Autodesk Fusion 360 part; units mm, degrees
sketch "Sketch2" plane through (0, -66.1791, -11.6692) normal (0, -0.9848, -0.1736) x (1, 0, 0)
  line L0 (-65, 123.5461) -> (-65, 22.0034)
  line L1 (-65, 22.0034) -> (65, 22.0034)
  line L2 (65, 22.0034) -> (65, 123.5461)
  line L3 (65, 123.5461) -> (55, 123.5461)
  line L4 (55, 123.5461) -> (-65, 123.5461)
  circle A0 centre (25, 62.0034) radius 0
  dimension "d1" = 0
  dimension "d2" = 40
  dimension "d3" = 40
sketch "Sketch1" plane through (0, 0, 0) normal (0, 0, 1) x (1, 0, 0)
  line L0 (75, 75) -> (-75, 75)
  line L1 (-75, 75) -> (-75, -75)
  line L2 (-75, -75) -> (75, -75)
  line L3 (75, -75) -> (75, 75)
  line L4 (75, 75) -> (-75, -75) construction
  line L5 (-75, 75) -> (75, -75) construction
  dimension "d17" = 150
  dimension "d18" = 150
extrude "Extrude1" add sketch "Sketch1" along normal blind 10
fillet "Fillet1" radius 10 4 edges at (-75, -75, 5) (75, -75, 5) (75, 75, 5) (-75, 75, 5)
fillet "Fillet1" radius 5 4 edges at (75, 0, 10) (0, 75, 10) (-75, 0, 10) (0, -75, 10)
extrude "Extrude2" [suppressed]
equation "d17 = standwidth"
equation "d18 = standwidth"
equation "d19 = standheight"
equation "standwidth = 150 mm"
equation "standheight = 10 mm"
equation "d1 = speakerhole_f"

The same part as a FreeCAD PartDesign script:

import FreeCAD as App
import Part
import Sketcher
from FreeCAD import Vector


def edges_at(feature, points):
    """Names of the edges that pass closest to the given points."""
    edges = feature.Shape.Edges
    near = lambda p: min(range(len(edges)), key=lambda i: edges[i].distToShape(Part.Vertex(*p))[0])
    return sorted({f"Edge{near(p) + 1}" for p in points})

doc = App.newDocument("Part")
params = doc.addObject("Spreadsheet::Sheet", "Params")
for row, (alias, value) in enumerate([
    ("sketch1_width", "150 mm"),
    ("pad1_length", "10 mm"),
    ("fillet_radius", "10 mm"),
    ("fillet2_radius", "5 mm"),
], start=1):
    params.set(f"A{row}", alias)
    params.set(f"B{row}", "=" + value)
    params.setAlias(f"B{row}", alias)

body = doc.addObject("PartDesign::Body", "Body")

sketch1 = doc.addObject("Sketcher::SketchObject", "Sketch")
body.addObject(sketch1)
sketch1.AttachmentSupport = (doc.XY_Plane, [""])
sketch1.MapMode = "FlatFace"
sketch1.addGeometry([
    Part.LineSegment(Vector(75, -75, 0), Vector(75, 75, 0)),
    Part.LineSegment(Vector(75, 75, 0), Vector(-75, 75, 0)),
    Part.LineSegment(Vector(-75, 75, 0), Vector(-75, -75, 0)),
    Part.LineSegment(Vector(-75, -75, 0), Vector(75, -75, 0)),
], False)
sketch1.addConstraint([
    Sketcher.Constraint("Coincident", 0, 2, 1, 1),
    Sketcher.Constraint("Coincident", 1, 2, 2, 1),
    Sketcher.Constraint("Coincident", 2, 2, 3, 1),
    Sketcher.Constraint("Coincident", 3, 2, 0, 1),
    Sketcher.Constraint("Vertical", 0),
    Sketcher.Constraint("Horizontal", 1),
    Sketcher.Constraint("Vertical", 2),
    Sketcher.Constraint("Horizontal", 3),
    Sketcher.Constraint("Symmetric", 0, 2, 2, 2, -1, 1),
    Sketcher.Constraint("Equal", 3, 0),
    Sketcher.Constraint("DistanceX", 1, 2, 1, 1, 150.0),
])
sketch1.setExpression("Constraints[10]", "Params.sketch1_width")
pad1 = doc.addObject("PartDesign::Pad", "Pad")
body.addObject(pad1)
pad1.Profile = sketch1
pad1.setExpression("Length", "Params.pad1_length")
doc.recompute()

fillet = doc.addObject("PartDesign::Fillet", "Fillet")
body.addObject(fillet)
fillet.Base = (pad1, edges_at(pad1, [
    (-75, -75, 5),
    (75, -75, 5),
    (75, 75, 5),
    (-75, 75, 5),
]))
fillet.setExpression("Radius", "Params.fillet_radius")
doc.recompute()

fillet2 = doc.addObject("PartDesign::Fillet", "Fillet001")
body.addObject(fillet2)
fillet2.Base = (fillet, edges_at(fillet, [
    (75, 0, 10),
    (0, 75, 10),
    (-75, 0, 10),
    (0, -75, 10),
]))
fillet2.setExpression("Radius", "Params.fillet2_radius")

doc.recompute()
